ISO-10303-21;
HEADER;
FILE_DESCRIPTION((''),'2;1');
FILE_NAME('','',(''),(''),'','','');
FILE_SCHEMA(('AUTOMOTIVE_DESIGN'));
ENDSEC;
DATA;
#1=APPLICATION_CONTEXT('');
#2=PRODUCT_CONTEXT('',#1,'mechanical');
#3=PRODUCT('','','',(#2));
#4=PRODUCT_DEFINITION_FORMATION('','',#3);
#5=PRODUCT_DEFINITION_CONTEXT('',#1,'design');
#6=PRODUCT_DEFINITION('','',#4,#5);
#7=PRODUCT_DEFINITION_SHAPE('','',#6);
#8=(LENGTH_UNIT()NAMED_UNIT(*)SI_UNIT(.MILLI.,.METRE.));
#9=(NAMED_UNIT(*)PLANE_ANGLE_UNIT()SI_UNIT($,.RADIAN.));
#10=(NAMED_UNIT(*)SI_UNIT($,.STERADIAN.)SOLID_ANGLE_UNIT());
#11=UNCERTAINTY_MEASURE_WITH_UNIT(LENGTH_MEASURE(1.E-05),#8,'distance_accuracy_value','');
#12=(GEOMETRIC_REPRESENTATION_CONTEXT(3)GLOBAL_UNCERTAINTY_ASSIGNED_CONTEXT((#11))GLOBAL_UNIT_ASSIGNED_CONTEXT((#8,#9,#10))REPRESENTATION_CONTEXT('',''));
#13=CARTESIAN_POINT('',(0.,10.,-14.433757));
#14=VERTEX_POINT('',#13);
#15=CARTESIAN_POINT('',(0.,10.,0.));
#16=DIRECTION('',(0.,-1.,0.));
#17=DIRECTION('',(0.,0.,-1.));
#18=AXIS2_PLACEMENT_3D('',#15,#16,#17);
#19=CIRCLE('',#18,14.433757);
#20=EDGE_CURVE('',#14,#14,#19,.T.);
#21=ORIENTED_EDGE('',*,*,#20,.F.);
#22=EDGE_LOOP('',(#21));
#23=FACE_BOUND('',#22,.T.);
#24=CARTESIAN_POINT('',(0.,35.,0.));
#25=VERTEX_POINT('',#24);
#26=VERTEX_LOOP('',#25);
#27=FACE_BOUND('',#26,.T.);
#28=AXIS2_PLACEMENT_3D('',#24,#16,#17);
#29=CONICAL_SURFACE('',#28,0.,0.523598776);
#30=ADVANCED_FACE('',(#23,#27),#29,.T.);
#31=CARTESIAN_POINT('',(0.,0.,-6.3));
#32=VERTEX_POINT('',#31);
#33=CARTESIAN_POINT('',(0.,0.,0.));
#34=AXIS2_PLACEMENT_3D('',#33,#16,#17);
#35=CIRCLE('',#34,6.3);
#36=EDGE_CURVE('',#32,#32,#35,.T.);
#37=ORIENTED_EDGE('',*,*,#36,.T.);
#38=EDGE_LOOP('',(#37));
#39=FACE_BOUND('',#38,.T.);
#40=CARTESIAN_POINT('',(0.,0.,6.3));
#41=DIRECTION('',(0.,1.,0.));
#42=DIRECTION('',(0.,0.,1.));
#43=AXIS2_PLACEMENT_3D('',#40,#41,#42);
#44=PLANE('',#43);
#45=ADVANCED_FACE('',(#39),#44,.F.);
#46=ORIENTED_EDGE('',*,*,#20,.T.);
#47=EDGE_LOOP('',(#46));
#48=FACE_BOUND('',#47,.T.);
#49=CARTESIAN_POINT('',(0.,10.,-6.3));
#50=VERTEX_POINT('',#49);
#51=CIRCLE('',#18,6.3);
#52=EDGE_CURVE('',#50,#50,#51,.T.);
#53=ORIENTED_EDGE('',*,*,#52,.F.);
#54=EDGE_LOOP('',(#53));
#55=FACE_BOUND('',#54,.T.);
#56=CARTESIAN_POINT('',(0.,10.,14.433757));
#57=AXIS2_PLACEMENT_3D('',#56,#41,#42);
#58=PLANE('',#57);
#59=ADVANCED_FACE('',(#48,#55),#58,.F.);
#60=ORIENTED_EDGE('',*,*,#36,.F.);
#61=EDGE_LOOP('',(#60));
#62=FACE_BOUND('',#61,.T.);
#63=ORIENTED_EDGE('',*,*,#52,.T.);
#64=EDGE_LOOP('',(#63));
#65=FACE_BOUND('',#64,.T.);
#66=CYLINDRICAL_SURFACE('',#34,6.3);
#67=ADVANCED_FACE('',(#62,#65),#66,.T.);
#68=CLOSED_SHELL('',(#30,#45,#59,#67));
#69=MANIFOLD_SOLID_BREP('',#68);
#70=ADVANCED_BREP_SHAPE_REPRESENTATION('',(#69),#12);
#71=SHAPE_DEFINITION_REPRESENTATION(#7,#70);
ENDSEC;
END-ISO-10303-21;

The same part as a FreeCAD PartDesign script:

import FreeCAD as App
import Part
import Sketcher

V = App.Vector
Q = App.Units.Quantity

doc = App.newDocument("Part")
body = doc.addObject("PartDesign::Body", "Body")

# Sketch on YZ plane
sketch1 = body.newObject("Sketcher::SketchObject", "Sketch")
sketch1.AttachmentSupport = (doc.getObject("YZ_Plane"), [""])
sketch1.MapMode = "FlatFace"
sketch1.addGeometry([
    Part.LineSegment(V(0, 0, 0), V(35, 0, 0)),  # 0
    Part.LineSegment(V(35, 0, 0), V(10, 14.433757, 0)),  # 1
    Part.LineSegment(V(10, 14.433757, 0), V(10, 6.3, 0)),  # 2
    Part.LineSegment(V(10, 6.3, 0), V(0, 6.3, 0)),  # 3
    Part.LineSegment(V(0, 6.3, 0), V(0, 0, 0)),  # 4
], False)
sketch1.addConstraint([
    Sketcher.Constraint("Coincident", 0, 2, 1, 1),
    Sketcher.Constraint("Coincident", 1, 2, 2, 1),
    Sketcher.Constraint("Coincident", 2, 2, 3, 1),
    Sketcher.Constraint("Coincident", 3, 2, 4, 1),
    Sketcher.Constraint("Coincident", 4, 2, 0, 1),
    Sketcher.Constraint("Horizontal", 0),
    Sketcher.Constraint("Vertical", 2),
    Sketcher.Constraint("Horizontal", 3),
    Sketcher.Constraint("Vertical", 4),
    Sketcher.Constraint("Coincident", 4, 2, -1, 1),
    Sketcher.Constraint("DistanceX", 0, 1, 0, 2, 35.0),
    Sketcher.Constraint("DistanceX", 3, 2, 3, 1, 10.0),
    Sketcher.Constraint("Angle", 1, Q("150 deg")),
    Sketcher.Constraint("DistanceY", 4, 2, 4, 1, 6.3),
])
revolution = body.newObject("PartDesign::Revolution", "Revolution")
revolution.Profile = sketch1
revolution.ReferenceAxis = (sketch1, ["H_Axis"])
revolution.Angle = 360

doc.recompute()
